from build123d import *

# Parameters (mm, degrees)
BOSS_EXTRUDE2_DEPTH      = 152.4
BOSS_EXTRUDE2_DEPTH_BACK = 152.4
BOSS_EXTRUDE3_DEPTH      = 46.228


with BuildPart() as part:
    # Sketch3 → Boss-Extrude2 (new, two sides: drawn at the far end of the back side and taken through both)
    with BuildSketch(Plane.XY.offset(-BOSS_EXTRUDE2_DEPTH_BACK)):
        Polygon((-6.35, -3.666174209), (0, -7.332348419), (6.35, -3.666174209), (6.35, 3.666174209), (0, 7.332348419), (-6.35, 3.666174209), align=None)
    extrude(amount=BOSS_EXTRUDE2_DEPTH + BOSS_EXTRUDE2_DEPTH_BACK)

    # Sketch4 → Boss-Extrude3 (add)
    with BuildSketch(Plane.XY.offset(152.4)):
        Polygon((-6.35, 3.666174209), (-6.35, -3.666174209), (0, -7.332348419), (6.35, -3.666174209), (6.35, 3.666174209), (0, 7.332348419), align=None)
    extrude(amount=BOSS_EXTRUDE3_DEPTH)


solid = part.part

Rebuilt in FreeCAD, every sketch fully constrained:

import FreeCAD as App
import Part
import Sketcher
from FreeCAD import Vector
Q = App.Units.Quantity


def add_polygon(sketch, points):
    """Adds a closed chain of lines whose ends are joined by coincident constraints."""
    first, n = sketch.GeometryCount, len(points)
    for a, b in zip(points, points[1:] + points[:1]):
        sketch.addGeometry(Part.LineSegment(App.Vector(*a, 0), App.Vector(*b, 0)), False)
    for i in range(n):
        sketch.addConstraint(Sketcher.Constraint("Coincident", first + i, 2, first + (i + 1) % n, 1))

doc = App.newDocument("Part")
body = doc.addObject("PartDesign::Body", "Body")

# Sketch on XY plane
sketch1 = body.newObject("Sketcher::SketchObject", "Sketch")
sketch1.AttachmentSupport = (doc.getObject("XY_Plane"), [""])
sketch1.MapMode = "FlatFace"
add_polygon(sketch1, [(-6, -4), (0, -7), (6, -4), (6, 4), (0, 7), (-6, 4)])  # lines 0-5
sketch1.addConstraint(Sketcher.Constraint("Vertical", 2))
sketch1.addConstraint(Sketcher.Constraint("Vertical", 5))
sketch1.addConstraint(Sketcher.Constraint("Symmetric", 0, 2, 3, 2, -1, 1))
sketch1.addConstraint(Sketcher.Constraint("Symmetric", 1, 2, 4, 2, -1, 1))
sketch1.addConstraint(Sketcher.Constraint("PointOnObject", 0, 2, -2))
sketch1.addConstraint(Sketcher.Constraint("Parallel", 0, 3))
sketch1.addConstraint(Sketcher.Constraint("Horizontal", 2, 2, 4, 2))
sketch1.addConstraint(Sketcher.Constraint("Angle", 0, Q("-30 deg")))
sketch1.addConstraint(Sketcher.Constraint("DistanceX", 4, 2, 2, 2, Q("0.5 in")))
sketch1.addConstraint(Sketcher.Constraint("DistanceY", 2, 1, 2, 2, 7.332348))
pad1 = body.newObject("PartDesign::Pad", "Pad")
pad1.Profile = sketch1
pad1.Type = "TwoLengths"
pad1.Length = Q("6 in")
pad1.Length2 = Q("6 in")

# Sketch on XY plane
sketch2 = body.newObject("Sketcher::SketchObject", "Sketch001")
sketch2.AttachmentSupport = (doc.getObject("XY_Plane"), [""])
sketch2.MapMode = "FlatFace"
sketch2.AttachmentOffset = App.Placement(Vector(0, 0, 6 * 25.4), App.Rotation())
add_polygon(sketch2, [(-6, 4), (-6, -4), (0, -7), (6, -4), (6, 4), (0, 7)])  # lines 0-5
sketch2.addConstraint(Sketcher.Constraint("Vertical", 0))
sketch2.addConstraint(Sketcher.Constraint("Vertical", 3))
sketch2.addConstraint(Sketcher.Constraint("Symmetric", 0, 2, 3, 2, -1, 1))
sketch2.addConstraint(Sketcher.Constraint("Symmetric", 1, 2, 4, 2, -1, 1))
sketch2.addConstraint(Sketcher.Constraint("PointOnObject", 1, 2, -2))
sketch2.addConstraint(Sketcher.Constraint("Parallel", 2, 5))
sketch2.addConstraint(Sketcher.Constraint("Horizontal", 0, 2, 2, 2))
sketch2.addConstraint(Sketcher.Constraint("Angle", 1, Q("-30 deg")))
sketch2.addConstraint(Sketcher.Constraint("DistanceX", 0, 2, 2, 2, Q("0.5 in")))
sketch2.addConstraint(Sketcher.Constraint("DistanceY", 0, 2, 0, 1, 7.332348))
pad2 = body.newObject("PartDesign::Pad", "Pad001")
pad2.Profile = sketch2
pad2.Length = Q("1.82 in")

doc.recompute()
